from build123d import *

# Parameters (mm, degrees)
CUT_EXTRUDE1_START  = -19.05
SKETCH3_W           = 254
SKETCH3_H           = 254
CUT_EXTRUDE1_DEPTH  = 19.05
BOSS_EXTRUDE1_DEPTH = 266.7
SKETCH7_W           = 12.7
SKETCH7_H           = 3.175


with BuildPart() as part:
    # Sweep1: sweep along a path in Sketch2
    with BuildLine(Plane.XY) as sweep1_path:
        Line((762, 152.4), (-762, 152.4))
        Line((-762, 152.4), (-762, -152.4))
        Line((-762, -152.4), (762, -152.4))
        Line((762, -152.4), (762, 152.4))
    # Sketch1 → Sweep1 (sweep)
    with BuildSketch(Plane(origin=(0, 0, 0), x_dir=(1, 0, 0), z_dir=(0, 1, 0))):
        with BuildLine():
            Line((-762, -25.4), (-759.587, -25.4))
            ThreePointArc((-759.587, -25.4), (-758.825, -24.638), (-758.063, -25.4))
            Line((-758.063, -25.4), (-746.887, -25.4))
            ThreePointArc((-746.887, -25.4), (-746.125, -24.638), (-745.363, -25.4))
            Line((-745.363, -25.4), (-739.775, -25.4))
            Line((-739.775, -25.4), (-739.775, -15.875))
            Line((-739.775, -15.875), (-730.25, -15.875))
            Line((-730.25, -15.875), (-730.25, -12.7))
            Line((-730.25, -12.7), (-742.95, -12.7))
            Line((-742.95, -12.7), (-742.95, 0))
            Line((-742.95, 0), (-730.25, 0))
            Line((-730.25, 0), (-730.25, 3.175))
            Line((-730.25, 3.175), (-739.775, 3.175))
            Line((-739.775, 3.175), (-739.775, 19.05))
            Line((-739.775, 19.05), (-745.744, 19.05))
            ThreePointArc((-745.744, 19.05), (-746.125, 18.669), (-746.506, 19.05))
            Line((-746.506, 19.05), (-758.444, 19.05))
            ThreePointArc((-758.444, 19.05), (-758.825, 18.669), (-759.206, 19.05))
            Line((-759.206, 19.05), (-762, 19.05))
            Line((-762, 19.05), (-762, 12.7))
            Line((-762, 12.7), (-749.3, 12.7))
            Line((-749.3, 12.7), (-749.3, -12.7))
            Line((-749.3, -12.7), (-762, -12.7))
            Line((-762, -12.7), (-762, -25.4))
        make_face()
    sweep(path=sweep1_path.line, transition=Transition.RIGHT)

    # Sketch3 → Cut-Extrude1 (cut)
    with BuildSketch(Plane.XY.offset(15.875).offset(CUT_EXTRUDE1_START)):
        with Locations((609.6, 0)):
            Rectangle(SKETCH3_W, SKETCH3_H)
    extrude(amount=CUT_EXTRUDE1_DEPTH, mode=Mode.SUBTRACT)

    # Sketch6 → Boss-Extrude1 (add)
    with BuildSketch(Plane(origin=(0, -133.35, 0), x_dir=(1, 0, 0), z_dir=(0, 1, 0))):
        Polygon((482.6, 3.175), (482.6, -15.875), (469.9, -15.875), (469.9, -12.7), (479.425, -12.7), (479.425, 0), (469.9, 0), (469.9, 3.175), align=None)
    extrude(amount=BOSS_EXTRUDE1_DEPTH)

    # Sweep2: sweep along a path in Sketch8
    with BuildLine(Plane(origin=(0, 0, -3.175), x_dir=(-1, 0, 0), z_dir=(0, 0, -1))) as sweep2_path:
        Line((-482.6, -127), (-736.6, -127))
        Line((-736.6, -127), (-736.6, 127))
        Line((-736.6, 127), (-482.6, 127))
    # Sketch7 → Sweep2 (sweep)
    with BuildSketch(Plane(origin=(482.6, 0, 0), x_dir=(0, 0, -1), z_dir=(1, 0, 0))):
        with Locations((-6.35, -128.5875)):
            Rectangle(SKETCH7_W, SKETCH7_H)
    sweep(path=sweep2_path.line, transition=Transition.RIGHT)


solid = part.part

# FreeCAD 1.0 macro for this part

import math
import FreeCAD as App
import Part
import Sketcher
from FreeCAD import Vector
Q = App.Units.Quantity


def add_polygon(sketch, points):
    """Adds a closed chain of lines whose ends are joined by coincident constraints."""
    first, n = sketch.GeometryCount, len(points)
    for a, b in zip(points, points[1:] + points[:1]):
        sketch.addGeometry(Part.LineSegment(App.Vector(*a, 0), App.Vector(*b, 0)), False)
    for i in range(n):
        sketch.addConstraint(Sketcher.Constraint("Coincident", first + i, 2, first + (i + 1) % n, 1))

doc = App.newDocument("Part")
body = doc.addObject("PartDesign::Body", "Body")

sketch1 = doc.addObject("Sketcher::SketchObject", "Sketch")
body.addObject(sketch1)
sketch1.AttachmentSupport = (doc.XZ_Plane, [""])
sketch1.MapMode = "FlatFace"
sketch1.addGeometry([
    Part.LineSegment(Vector(-762, 25.4, 0), Vector(-759.59, 25.4, 0)),
    Part.ArcOfCircle(Part.Circle(Vector(-758.83, 25.4, 0), Vector(0, 0, 1), 0.76), math.radians(180), math.radians(360)),
    Part.LineSegment(Vector(-758.06, 25.4, 0), Vector(-746.89, 25.4, 0)),
    Part.ArcOfCircle(Part.Circle(Vector(-746.12, 25.4, 0), Vector(0, 0, 1), 0.76), math.radians(180), math.radians(360)),
    Part.LineSegment(Vector(-745.36, 25.4, 0), Vector(-739.77, 25.4, 0)),
    Part.LineSegment(Vector(-739.77, 25.4, 0), Vector(-739.77, 15.88, 0)),
    Part.LineSegment(Vector(-739.77, 15.88, 0), Vector(-730.25, 15.88, 0)),
    Part.LineSegment(Vector(-730.25, 15.88, 0), Vector(-730.25, 12.7, 0)),
    Part.LineSegment(Vector(-730.25, 12.7, 0), Vector(-742.95, 12.7, 0)),
    Part.LineSegment(Vector(-742.95, 12.7, 0), Vector(-742.95, 0, 0)),
    Part.LineSegment(Vector(-742.95, 0, 0), Vector(-730.25, 0, 0)),
    Part.LineSegment(Vector(-730.25, 0, 0), Vector(-730.25, -3.17, 0)),
    Part.LineSegment(Vector(-730.25, -3.17, 0), Vector(-739.77, -3.17, 0)),
    Part.LineSegment(Vector(-739.77, -3.17, 0), Vector(-739.77, -19.05, 0)),
    Part.LineSegment(Vector(-739.77, -19.05, 0), Vector(-745.74, -19.05, 0)),
    Part.ArcOfCircle(Part.Circle(Vector(-746.12, -19.05, 0), Vector(0, 0, 1), 0.38), math.radians(0), math.radians(180)),
    Part.LineSegment(Vector(-746.51, -19.05, 0), Vector(-758.44, -19.05, 0)),
    Part.ArcOfCircle(Part.Circle(Vector(-758.83, -19.05, 0), Vector(0, 0, 1), 0.38), math.radians(0), math.radians(180)),
    Part.LineSegment(Vector(-759.21, -19.05, 0), Vector(-762, -19.05, 0)),
    Part.LineSegment(Vector(-762, -19.05, 0), Vector(-762, -12.7, 0)),
    Part.LineSegment(Vector(-762, -12.7, 0), Vector(-749.3, -12.7, 0)),
    Part.LineSegment(Vector(-749.3, -12.7, 0), Vector(-749.3, 12.7, 0)),
    Part.LineSegment(Vector(-749.3, 12.7, 0), Vector(-762, 12.7, 0)),
    Part.LineSegment(Vector(-762, 12.7, 0), Vector(-762, 25.4, 0)),
], False)
sketch1.addConstraint([
    Sketcher.Constraint("Coincident", 0, 2, 1, 1),
    Sketcher.Constraint("Coincident", 1, 2, 2, 1),
    Sketcher.Constraint("Coincident", 2, 2, 3, 1),
    Sketcher.Constraint("Coincident", 3, 2, 4, 1),
    Sketcher.Constraint("Coincident", 4, 2, 5, 1),
    Sketcher.Constraint("Coincident", 5, 2, 6, 1),
    Sketcher.Constraint("Coincident", 6, 2, 7, 1),
    Sketcher.Constraint("Coincident", 7, 2, 8, 1),
    Sketcher.Constraint("Coincident", 8, 2, 9, 1),
    Sketcher.Constraint("Coincident", 9, 2, 10, 1),
    Sketcher.Constraint("Coincident", 10, 2, 11, 1),
    Sketcher.Constraint("Coincident", 11, 2, 12, 1),
    Sketcher.Constraint("Coincident", 12, 2, 13, 1),
    Sketcher.Constraint("Coincident", 13, 2, 14, 1),
    Sketcher.Constraint("Coincident", 14, 2, 15, 1),
    Sketcher.Constraint("Coincident", 15, 2, 16, 1),
    Sketcher.Constraint("Coincident", 16, 2, 17, 1),
    Sketcher.Constraint("Coincident", 17, 2, 18, 1),
    Sketcher.Constraint("Coincident", 18, 2, 19, 1),
    Sketcher.Constraint("Coincident", 19, 2, 20, 1),
    Sketcher.Constraint("Coincident", 20, 2, 21, 1),
    Sketcher.Constraint("Coincident", 21, 2, 22, 1),
    Sketcher.Constraint("Coincident", 22, 2, 23, 1),
    Sketcher.Constraint("Coincident", 23, 2, 0, 1),
    Sketcher.Constraint("Horizontal", 0),
    Sketcher.Constraint("Horizontal", 2),
    Sketcher.Constraint("Horizontal", 4),
    Sketcher.Constraint("Vertical", 5),
    Sketcher.Constraint("Horizontal", 6),
    Sketcher.Constraint("Vertical", 7),
    Sketcher.Constraint("Horizontal", 8),
    Sketcher.Constraint("Vertical", 9),
    Sketcher.Constraint("Horizontal", 10),
    Sketcher.Constraint("Vertical", 11),
    Sketcher.Constraint("Horizontal", 12),
    Sketcher.Constraint("Vertical", 13),
    Sketcher.Constraint("Horizontal", 14),
    Sketcher.Constraint("Horizontal", 16),
    Sketcher.Constraint("Horizontal", 18),
    Sketcher.Constraint("Vertical", 19),
    Sketcher.Constraint("Horizontal", 20),
    Sketcher.Constraint("Vertical", 21),
    Sketcher.Constraint("Horizontal", 22),
    Sketcher.Constraint("Vertical", 23),
    Sketcher.Constraint("Equal", 1, 3),
    Sketcher.Constraint("Equal", 15, 17),
    Sketcher.Constraint("Symmetric", 19, 2, 22, 2, -1),
    Sketcher.Constraint("PointOnObject", 9, 2, -1),
    Sketcher.Constraint("Horizontal", 1, 3, 3, 3),
    Sketcher.Constraint("Horizontal", 15, 3, 17, 3),
    Sketcher.Constraint("Horizontal", 3, 3, 0, 2),
    Sketcher.Constraint("Horizontal", 0, 2, 1, 2),
    Sketcher.Constraint("Horizontal", 2, 2, 3, 2),
    Sketcher.Constraint("Horizontal", 17, 3, 13, 2),
    Sketcher.Constraint("Horizontal", 14, 2, 15, 2),
    Sketcher.Constraint("Horizontal", 16, 2, 17, 2),
    Sketcher.Constraint("Horizontal", 8, 2, 21, 2),
    Sketcher.Constraint("Vertical", 3, 3, 15, 3),
    Sketcher.Constraint("Vertical", 1, 3, 17, 3),
    Sketcher.Constraint("Vertical", 7, 2, 10, 2),
    Sketcher.Constraint("Vertical", 5, 2, 12, 2),
    Sketcher.Constraint("Equal", 10, 20),
    Sketcher.Constraint("Equal", 12, 5),
    Sketcher.Constraint("Equal", 22, 9),
    Sketcher.Constraint("Equal", 7, 11),
    Sketcher.Constraint("Equal", 9, 23),
    Sketcher.Constraint("DistanceY", 21, 1, 21, 2, Q("1 in")),
    Sketcher.Constraint("Radius", 1, Q("0.03 in")),
    Sketcher.Constraint("DistanceX", 18, 2, -1, 1, Q("30 in")),
    Sketcher.Constraint("Radius", 15, Q("0.015 in")),
    Sketcher.Constraint("DistanceX", 2, 1, 2, 2, Q("0.44 in")),
    Sketcher.Constraint("DistanceX", 4, 1, 4, 2, Q("0.22 in")),
    Sketcher.Constraint("DistanceX", 18, 2, 18, 1, Q("0.11 in")),
    Sketcher.Constraint("DistanceY", 19, 1, 19, 2, Q("0.25 in")),
    Sketcher.Constraint("DistanceX", 6, 1, 6, 2, Q("0.375 in")),
])

sketch2 = doc.addObject("Sketcher::SketchObject", "Sketch001")
body.addObject(sketch2)
sketch2.AttachmentSupport = (doc.XY_Plane, [""])
sketch2.MapMode = "FlatFace"
add_polygon(sketch2, [(762, 152), (-762, 152), (-762, -152), (762, -152)])
sketch2.addConstraint([
    Sketcher.Constraint("Horizontal", 0),
    Sketcher.Constraint("Vertical", 1),
    Sketcher.Constraint("Horizontal", 2),
    Sketcher.Constraint("Vertical", 3),
    Sketcher.Constraint("Symmetric", 0, 2, 2, 2, -1, 1),
    Sketcher.Constraint("DistanceX", 0, 2, 0, 1, Q("60 in")),
    Sketcher.Constraint("DistanceY", 1, 2, 1, 1, Q("12 in")),
])
doc.recompute()

additivepipe = doc.addObject("PartDesign::AdditivePipe", "AdditivePipe")
body.addObject(additivepipe)
additivepipe.Profile = sketch1
additivepipe.Spine = (sketch2, ["Edge1", "Edge2", "Edge3", "Edge4"])
additivepipe.Transition = "Right corner"

sketch3 = doc.addObject("Sketcher::SketchObject", "Sketch002")
body.addObject(sketch3)
sketch3.AttachmentSupport = (doc.XY_Plane, [""])
sketch3.MapMode = "FlatFace"
sketch3.AttachmentOffset = App.Placement(Vector(0, 0, -0.125 * 25.4), App.Rotation())
add_polygon(sketch3, [(483, 127), (483, -127), (737, -127), (737, 127)])
sketch3.addConstraint([
    Sketcher.Constraint("Vertical", 0),
    Sketcher.Constraint("Horizontal", 1),
    Sketcher.Constraint("Vertical", 2),
    Sketcher.Constraint("Horizontal", 3),
    Sketcher.Constraint("Equal", 3, 0),
    Sketcher.Constraint("DistanceX", 1, 1, 1, 2, Q("10 in")),
    Sketcher.Constraint("DistanceX", -1, 1, 0, 2, Q("19 in")),
    Sketcher.Constraint("DistanceY", 0, 2, -1, 1, Q("5 in")),
])
pocket1 = doc.addObject("PartDesign::Pocket", "Pocket")
body.addObject(pocket1)
pocket1.Profile = sketch3
pocket1.Length = Q("0.75 in")
pocket1.Reversed = True

sketch4 = doc.addObject("Sketcher::SketchObject", "Sketch003")
body.addObject(sketch4)
sketch4.AttachmentSupport = (doc.XZ_Plane, [""])
sketch4.MapMode = "FlatFace"
sketch4.AttachmentOffset = App.Placement(Vector(0, 0, 5.25 * 25.4), App.Rotation())
add_polygon(sketch4, [(482.6, 15.9), (482.6, -3.2), (469.9, -3.2), (469.9, 0), (479.4, 0), (479.4, 12.7), (469.9, 12.7), (469.9, 15.9)])
sketch4.addConstraint([
    Sketcher.Constraint("Vertical", 0),
    Sketcher.Constraint("Horizontal", 1),
    Sketcher.Constraint("Vertical", 2),
    Sketcher.Constraint("Horizontal", 3),
    Sketcher.Constraint("Vertical", 4),
    Sketcher.Constraint("Horizontal", 5),
    Sketcher.Constraint("Vertical", 6),
    Sketcher.Constraint("Horizontal", 7),
    Sketcher.Constraint("PointOnObject", 2, 2, -1),
    Sketcher.Constraint("Vertical", 2, 2, 5, 2),
    Sketcher.Constraint("Equal", 7, 4),
    Sketcher.Constraint("Equal", 2, 6),
    Sketcher.Constraint("DistanceX", 1, 2, 1, 1, Q("0.5 in")),
    Sketcher.Constraint("DistanceX", -1, 1, 0, 2, Q("19 in")),
    Sketcher.Constraint("DistanceY", 0, 2, 0, 1, Q("0.75 in")),
    Sketcher.Constraint("DistanceX", 3, 1, 3, 2, Q("0.375 in")),
])
pad1 = doc.addObject("PartDesign::Pad", "Pad")
body.addObject(pad1)
pad1.Profile = sketch4
pad1.Length = Q("10.5 in")
pad1.Reversed = True

sketch5 = doc.addObject("Sketcher::SketchObject", "Sketch004")
body.addObject(sketch5)
sketch5.AttachmentSupport = (doc.YZ_Plane, [""])
sketch5.MapMode = "FlatFace"
sketch5.AttachmentOffset = App.Placement(Vector(0, 0, 19 * 25.4), App.Rotation())
add_polygon(sketch5, [(-127, 12.7), (-130.2, 12.7), (-130.2, 0), (-127, 0)])
sketch5.addConstraint([
    Sketcher.Constraint("Horizontal", 0),
    Sketcher.Constraint("Vertical", 1),
    Sketcher.Constraint("Horizontal", 2),
    Sketcher.Constraint("Vertical", 3),
    Sketcher.Constraint("PointOnObject", 1, 2, -1),
    Sketcher.Constraint("DistanceY", 1, 2, 1, 1, Q("0.5 in")),
    Sketcher.Constraint("DistanceX", 2, 2, -1, 1, Q("5 in")),
    Sketcher.Constraint("DistanceX", 0, 2, 0, 1, Q("0.125 in")),
])

sketch6 = doc.addObject("Sketcher::SketchObject", "Sketch005")
body.addObject(sketch6)
sketch6.AttachmentSupport = (doc.XY_Plane, [""])
sketch6.MapMode = "FlatFace"
sketch6.AttachmentOffset = App.Placement(Vector(0, 0, -0.125 * 25.4), App.Rotation())
sketch6.addGeometry([
    Part.LineSegment(Vector(483, -127, 0), Vector(737, -127, 0)),
    Part.LineSegment(Vector(737, -127, 0), Vector(737, 127, 0)),
    Part.LineSegment(Vector(737, 127, 0), Vector(483, 127, 0)),
], False)
sketch6.addConstraint([
    Sketcher.Constraint("Coincident", 0, 2, 1, 1),
    Sketcher.Constraint("Coincident", 1, 2, 2, 1),
    Sketcher.Constraint("Horizontal", 0),
    Sketcher.Constraint("Vertical", 1),
    Sketcher.Constraint("Horizontal", 2),
    Sketcher.Constraint("Symmetric", 0, 1, 2, 2, -1),
    Sketcher.Constraint("Equal", 2, 1),
    Sketcher.Constraint("DistanceX", 0, 1, 0, 2, Q("10 in")),
    Sketcher.Constraint("DistanceX", -1, 1, 0, 1, Q("19 in")),
])
doc.recompute()

additivepipe2 = doc.addObject("PartDesign::AdditivePipe", "AdditivePipe001")
body.addObject(additivepipe2)
additivepipe2.Profile = sketch5
additivepipe2.Spine = (sketch6, ["Edge1", "Edge2", "Edge3"])
additivepipe2.Transition = "Right corner"

doc.recompute()
